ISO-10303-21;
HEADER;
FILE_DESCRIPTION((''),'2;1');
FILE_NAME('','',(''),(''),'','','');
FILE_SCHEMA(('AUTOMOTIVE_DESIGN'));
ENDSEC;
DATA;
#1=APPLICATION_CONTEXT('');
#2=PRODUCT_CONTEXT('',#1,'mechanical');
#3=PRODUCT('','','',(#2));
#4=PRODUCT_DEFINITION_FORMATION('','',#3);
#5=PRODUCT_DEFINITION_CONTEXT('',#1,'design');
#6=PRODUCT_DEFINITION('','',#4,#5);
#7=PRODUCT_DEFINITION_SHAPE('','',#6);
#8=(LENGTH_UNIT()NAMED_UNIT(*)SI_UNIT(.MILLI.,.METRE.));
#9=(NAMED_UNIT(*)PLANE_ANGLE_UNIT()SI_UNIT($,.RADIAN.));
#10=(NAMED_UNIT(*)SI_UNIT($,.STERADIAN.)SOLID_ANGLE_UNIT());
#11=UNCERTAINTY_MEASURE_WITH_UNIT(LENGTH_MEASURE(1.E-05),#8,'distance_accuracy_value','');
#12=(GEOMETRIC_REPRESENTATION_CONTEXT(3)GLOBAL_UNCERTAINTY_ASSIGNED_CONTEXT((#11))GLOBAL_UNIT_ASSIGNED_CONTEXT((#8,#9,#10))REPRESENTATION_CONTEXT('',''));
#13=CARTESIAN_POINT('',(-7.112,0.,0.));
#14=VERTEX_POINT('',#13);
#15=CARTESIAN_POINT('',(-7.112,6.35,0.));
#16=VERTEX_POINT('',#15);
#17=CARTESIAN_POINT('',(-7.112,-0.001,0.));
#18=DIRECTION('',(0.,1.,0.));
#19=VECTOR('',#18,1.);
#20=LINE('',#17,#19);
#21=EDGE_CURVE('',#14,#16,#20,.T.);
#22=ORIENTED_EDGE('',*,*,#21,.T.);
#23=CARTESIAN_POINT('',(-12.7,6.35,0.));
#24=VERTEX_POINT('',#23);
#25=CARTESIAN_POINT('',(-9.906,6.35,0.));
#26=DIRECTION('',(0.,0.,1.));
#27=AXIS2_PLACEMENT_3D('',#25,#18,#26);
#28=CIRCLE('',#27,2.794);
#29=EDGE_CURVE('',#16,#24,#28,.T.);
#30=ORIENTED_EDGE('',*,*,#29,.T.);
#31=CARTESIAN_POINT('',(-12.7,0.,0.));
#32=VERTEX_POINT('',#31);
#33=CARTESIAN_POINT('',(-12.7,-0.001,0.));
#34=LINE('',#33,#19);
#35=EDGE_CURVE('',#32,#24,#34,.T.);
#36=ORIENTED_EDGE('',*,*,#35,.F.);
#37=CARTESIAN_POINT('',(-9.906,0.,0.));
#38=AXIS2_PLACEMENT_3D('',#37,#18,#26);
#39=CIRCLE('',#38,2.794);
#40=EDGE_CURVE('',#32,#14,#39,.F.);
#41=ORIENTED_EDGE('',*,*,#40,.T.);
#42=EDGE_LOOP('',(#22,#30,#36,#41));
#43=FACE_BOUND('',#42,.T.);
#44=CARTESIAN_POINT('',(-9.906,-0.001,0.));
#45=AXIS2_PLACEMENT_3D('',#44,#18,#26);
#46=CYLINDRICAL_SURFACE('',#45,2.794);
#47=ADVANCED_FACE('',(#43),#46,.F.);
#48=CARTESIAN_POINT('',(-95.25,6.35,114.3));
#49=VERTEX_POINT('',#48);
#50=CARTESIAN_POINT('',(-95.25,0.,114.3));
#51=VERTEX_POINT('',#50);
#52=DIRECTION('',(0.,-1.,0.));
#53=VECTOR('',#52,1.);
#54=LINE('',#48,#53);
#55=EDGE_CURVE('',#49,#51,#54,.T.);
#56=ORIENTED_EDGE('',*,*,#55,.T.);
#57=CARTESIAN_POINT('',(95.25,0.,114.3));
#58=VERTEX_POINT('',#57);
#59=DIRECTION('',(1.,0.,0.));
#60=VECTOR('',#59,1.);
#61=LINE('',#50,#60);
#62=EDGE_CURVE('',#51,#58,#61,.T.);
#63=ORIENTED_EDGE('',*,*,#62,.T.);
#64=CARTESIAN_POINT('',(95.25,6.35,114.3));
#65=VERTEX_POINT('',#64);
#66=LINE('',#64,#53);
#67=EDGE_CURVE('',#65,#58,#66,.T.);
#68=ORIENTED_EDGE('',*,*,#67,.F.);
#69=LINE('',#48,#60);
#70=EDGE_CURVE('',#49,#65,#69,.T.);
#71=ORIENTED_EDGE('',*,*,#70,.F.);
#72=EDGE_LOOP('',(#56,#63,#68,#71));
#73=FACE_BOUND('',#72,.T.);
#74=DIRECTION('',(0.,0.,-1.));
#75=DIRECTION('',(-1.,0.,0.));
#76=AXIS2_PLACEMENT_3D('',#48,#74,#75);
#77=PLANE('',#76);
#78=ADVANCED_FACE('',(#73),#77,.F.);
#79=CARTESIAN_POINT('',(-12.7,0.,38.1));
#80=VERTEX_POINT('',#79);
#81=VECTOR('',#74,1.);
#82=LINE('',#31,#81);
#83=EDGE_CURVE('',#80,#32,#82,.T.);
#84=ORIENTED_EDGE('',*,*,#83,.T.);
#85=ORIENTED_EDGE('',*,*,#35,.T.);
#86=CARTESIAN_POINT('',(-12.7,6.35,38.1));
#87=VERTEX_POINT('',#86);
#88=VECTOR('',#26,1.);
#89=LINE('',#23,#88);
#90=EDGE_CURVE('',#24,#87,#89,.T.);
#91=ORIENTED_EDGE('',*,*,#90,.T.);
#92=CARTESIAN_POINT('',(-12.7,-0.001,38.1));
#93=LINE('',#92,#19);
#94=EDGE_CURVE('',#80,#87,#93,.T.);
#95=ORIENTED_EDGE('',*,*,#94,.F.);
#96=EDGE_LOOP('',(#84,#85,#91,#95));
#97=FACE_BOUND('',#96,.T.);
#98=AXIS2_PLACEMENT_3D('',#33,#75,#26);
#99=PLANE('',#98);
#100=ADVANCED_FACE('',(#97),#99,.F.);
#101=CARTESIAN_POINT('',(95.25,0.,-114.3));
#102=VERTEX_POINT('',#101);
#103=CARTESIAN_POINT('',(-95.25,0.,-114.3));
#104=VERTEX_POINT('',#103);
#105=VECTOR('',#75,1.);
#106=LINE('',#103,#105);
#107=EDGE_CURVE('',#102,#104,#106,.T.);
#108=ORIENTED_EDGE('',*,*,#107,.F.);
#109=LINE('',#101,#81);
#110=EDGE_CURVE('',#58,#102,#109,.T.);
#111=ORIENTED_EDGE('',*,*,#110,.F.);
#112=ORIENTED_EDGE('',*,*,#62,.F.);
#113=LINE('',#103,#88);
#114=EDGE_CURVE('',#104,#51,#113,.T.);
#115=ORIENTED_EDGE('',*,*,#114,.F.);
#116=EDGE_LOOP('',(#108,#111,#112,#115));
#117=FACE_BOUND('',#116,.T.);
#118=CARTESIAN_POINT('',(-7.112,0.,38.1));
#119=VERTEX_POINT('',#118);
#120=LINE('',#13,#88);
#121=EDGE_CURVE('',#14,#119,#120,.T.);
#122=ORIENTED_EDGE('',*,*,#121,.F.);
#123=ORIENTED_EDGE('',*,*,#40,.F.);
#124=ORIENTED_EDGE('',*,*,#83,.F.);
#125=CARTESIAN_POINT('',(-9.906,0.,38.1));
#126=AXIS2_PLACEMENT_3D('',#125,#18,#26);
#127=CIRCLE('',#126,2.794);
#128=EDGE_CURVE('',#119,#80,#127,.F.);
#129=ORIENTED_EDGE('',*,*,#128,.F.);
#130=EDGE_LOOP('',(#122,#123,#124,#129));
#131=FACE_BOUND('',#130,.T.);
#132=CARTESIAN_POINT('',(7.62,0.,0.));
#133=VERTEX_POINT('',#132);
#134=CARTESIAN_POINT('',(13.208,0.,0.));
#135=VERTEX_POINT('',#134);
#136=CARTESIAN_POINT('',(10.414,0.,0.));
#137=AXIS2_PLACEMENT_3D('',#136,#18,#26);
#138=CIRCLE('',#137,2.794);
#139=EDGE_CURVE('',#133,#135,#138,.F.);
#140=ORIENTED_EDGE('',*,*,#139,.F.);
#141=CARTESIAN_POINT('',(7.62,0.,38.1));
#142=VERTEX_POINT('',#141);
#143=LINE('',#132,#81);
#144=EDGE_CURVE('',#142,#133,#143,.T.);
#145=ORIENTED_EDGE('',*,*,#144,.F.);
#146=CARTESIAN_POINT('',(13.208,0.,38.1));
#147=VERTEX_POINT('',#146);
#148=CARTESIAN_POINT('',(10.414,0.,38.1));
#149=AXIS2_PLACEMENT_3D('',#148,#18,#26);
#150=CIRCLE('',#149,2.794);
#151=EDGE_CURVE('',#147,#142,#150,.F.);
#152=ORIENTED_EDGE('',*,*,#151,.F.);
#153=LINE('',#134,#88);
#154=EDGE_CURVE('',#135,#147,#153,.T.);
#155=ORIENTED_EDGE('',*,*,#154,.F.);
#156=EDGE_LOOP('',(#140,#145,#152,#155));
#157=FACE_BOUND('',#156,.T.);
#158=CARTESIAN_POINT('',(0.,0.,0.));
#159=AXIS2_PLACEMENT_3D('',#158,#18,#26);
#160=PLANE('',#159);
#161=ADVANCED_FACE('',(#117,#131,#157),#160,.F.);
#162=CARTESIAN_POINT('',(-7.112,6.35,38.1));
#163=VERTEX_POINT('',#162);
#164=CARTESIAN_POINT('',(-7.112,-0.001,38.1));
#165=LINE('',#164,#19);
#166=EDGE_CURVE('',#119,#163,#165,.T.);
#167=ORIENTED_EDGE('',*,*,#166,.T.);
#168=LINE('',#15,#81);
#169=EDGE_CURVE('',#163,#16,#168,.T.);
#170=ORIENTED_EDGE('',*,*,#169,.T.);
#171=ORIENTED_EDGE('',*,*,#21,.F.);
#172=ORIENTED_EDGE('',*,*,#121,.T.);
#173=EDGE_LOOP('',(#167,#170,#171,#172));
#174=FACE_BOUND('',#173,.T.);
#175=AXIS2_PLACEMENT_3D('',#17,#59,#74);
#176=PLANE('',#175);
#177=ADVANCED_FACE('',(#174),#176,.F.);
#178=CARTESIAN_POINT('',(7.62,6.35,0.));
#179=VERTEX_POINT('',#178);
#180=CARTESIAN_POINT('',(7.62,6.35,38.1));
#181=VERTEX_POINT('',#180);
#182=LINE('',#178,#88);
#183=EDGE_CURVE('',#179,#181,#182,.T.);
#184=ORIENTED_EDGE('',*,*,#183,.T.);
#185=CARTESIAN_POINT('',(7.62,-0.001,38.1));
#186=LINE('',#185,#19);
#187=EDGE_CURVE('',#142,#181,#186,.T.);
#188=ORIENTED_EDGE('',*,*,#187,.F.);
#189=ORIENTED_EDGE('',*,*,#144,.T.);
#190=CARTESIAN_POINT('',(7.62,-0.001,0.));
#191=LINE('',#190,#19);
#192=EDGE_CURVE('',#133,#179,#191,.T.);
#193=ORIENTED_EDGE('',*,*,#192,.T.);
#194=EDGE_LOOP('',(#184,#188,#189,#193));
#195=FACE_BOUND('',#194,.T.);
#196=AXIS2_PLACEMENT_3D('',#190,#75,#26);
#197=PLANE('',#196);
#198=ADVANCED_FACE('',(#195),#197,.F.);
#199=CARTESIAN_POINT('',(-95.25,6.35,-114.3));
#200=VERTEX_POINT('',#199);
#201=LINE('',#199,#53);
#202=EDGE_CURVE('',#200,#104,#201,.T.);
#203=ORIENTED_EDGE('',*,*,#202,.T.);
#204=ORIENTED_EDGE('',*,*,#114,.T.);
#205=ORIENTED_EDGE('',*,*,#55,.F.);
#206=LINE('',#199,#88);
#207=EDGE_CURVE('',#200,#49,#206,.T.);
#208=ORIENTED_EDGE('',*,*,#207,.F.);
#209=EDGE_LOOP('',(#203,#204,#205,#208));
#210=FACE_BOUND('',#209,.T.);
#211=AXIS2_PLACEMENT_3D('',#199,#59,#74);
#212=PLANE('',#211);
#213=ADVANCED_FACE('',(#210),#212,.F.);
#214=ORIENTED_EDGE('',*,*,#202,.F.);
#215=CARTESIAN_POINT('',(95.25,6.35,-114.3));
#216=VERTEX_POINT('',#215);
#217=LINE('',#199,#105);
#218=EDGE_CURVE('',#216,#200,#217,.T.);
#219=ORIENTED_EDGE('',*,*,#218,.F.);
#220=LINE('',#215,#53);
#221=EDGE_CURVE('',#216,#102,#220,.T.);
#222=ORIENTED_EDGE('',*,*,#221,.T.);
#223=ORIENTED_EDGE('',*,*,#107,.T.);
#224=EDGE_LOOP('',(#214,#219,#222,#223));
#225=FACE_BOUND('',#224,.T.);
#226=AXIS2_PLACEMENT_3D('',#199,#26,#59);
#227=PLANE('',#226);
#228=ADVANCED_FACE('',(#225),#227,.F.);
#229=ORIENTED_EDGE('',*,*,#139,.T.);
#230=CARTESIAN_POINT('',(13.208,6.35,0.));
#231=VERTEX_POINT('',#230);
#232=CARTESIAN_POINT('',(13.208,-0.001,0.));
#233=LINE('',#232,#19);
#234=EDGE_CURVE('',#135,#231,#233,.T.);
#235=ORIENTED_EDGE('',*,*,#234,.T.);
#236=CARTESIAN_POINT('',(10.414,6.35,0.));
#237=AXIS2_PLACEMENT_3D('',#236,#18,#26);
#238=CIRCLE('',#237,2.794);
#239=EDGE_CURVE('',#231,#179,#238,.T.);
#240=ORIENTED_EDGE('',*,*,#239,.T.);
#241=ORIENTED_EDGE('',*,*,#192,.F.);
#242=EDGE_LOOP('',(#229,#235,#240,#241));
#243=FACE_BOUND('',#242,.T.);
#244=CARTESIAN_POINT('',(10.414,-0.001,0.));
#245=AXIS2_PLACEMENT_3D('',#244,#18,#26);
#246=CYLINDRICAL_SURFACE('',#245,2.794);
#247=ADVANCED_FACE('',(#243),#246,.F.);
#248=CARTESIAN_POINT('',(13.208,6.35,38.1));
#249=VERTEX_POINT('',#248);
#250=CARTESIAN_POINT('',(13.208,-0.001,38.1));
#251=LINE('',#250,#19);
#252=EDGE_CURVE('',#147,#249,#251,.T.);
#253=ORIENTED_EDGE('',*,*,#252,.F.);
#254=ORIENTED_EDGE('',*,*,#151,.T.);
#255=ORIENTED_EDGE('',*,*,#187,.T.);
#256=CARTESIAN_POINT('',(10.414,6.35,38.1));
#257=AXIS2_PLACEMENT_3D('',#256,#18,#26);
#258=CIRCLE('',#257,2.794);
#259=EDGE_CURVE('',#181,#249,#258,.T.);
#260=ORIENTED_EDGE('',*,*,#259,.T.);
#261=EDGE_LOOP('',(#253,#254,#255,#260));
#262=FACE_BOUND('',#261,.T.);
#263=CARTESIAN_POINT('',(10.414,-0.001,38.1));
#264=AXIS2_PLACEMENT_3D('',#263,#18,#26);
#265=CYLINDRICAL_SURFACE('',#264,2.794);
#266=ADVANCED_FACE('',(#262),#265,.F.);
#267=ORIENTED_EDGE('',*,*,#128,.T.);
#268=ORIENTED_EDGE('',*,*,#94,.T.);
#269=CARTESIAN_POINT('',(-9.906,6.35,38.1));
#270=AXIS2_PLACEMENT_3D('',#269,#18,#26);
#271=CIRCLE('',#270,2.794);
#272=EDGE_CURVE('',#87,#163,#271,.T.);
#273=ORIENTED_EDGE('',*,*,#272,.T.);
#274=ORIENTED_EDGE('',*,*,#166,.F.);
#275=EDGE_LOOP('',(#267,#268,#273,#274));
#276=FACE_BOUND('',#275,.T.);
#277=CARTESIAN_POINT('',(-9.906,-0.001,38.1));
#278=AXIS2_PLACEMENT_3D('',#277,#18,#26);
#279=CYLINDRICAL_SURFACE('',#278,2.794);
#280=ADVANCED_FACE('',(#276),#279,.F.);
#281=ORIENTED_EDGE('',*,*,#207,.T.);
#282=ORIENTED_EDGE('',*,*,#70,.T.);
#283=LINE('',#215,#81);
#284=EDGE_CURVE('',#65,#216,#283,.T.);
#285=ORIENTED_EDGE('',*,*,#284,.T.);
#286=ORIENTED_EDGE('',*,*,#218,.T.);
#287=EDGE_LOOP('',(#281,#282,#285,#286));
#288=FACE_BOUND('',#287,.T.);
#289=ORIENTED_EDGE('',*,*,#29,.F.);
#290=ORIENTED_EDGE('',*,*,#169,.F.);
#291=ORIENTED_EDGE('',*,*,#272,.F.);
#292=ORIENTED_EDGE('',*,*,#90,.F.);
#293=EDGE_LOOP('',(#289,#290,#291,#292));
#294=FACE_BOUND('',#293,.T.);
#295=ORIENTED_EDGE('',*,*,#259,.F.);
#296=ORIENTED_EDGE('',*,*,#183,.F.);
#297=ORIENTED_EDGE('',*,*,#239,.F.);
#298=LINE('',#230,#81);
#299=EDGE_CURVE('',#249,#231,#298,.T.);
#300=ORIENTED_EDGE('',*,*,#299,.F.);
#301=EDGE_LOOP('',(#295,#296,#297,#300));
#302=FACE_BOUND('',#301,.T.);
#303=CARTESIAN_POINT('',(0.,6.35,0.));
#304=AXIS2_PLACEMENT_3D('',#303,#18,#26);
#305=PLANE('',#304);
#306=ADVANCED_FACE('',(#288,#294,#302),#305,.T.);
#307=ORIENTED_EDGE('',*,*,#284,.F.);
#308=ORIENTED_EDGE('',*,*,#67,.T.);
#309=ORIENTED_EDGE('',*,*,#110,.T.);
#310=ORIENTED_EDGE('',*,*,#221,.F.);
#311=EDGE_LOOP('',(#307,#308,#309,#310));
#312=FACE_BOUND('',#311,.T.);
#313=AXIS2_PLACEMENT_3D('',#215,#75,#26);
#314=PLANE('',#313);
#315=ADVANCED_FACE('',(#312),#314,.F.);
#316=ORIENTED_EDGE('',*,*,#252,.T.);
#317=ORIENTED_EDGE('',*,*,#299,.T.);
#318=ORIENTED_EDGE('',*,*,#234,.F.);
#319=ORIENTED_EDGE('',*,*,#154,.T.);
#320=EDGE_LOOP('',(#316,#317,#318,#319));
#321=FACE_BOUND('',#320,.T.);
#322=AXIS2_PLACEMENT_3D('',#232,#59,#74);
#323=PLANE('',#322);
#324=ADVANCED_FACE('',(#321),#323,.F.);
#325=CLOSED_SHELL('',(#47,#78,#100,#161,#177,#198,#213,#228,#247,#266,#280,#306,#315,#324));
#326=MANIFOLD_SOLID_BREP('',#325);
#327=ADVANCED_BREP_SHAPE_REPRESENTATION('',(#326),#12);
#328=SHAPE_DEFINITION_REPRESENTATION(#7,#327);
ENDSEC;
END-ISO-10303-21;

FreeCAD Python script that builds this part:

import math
import FreeCAD as App
import Part
import Sketcher
from FreeCAD import Vector
Q = App.Units.Quantity


def add_polygon(sketch, points):
    """Adds a closed chain of lines whose ends are joined by coincident constraints."""
    first, n = sketch.GeometryCount, len(points)
    for a, b in zip(points, points[1:] + points[:1]):
        sketch.addGeometry(Part.LineSegment(App.Vector(*a, 0), App.Vector(*b, 0)), False)
    for i in range(n):
        sketch.addConstraint(Sketcher.Constraint("Coincident", first + i, 2, first + (i + 1) % n, 1))

doc = App.newDocument("Part")
params = doc.addObject("Spreadsheet::Sheet", "Params")
for row, (alias, value) in enumerate([
    ("sketch1_height", "9 in"),
    ("sketch1_width", "7.5 in"),
    ("pad1_length", "0.25 in"),
    ("sketch2_radius", "0.11 in"),
    ("sketch2_height", "1.5 in"),
    ("sketch3_radius", "0.11 in"),
    ("sketch3_height", "1.5 in"),
], start=1):
    params.set(f"A{row}", alias)
    params.set(f"B{row}", "=" + value)
    params.setAlias(f"B{row}", alias)

body = doc.addObject("PartDesign::Body", "Body")

# Sketch on XZ plane
sketch1 = body.newObject("Sketcher::SketchObject", "Sketch")
sketch1.AttachmentSupport = (doc.getObject("XZ_Plane"), [""])
sketch1.MapMode = "FlatFace"
add_polygon(sketch1, [(-95.25, -114.3), (-95.25, 114.3), (95.25, 114.3), (95.25, -114.3)])  # lines 0-3
sketch1.addConstraint(Sketcher.Constraint("Vertical", 0))
sketch1.addConstraint(Sketcher.Constraint("Horizontal", 1))
sketch1.addConstraint(Sketcher.Constraint("Vertical", 2))
sketch1.addConstraint(Sketcher.Constraint("Horizontal", 3))
sketch1.addConstraint(Sketcher.Constraint("Symmetric", 0, 2, 2, 2, -1, 1))
sketch1.addConstraint(Sketcher.Constraint("DistanceY", 0, 1, 0, 2, Q("9 in")))
sketch1.addConstraint(Sketcher.Constraint("DistanceX", 1, 1, 1, 2, Q("7.5 in")))
sketch1.setExpression("Constraints[9]", "Params.sketch1_height")
sketch1.setExpression("Constraints[10]", "Params.sketch1_width")
pad1 = body.newObject("PartDesign::Pad", "Pad")
pad1.Profile = sketch1
pad1.setExpression("Length", "Params.pad1_length")
pad1.Reversed = True

# Sketch on XZ plane
sketch2 = body.newObject("Sketcher::SketchObject", "Sketch001")
sketch2.AttachmentSupport = (doc.getObject("XZ_Plane"), [""])
sketch2.MapMode = "FlatFace"
sketch2.AttachmentOffset = App.Placement(Vector(0, 0, -0.25 * 25.4), App.Rotation())
sketch2.addGeometry(Part.LineSegment(Vector(-7.112, 38.1, 0), Vector(-7.112, 0, 0)), False)
sketch2.addGeometry(Part.ArcOfCircle(Part.Circle(Vector(-9.906, 0, 0), Vector(0, 0, 1), 2.794), math.radians(180), math.radians(360)), False)
sketch2.addGeometry(Part.LineSegment(Vector(-12.7, 0, 0), Vector(-12.7, 38.1, 0)), False)
sketch2.addGeometry(Part.ArcOfCircle(Part.Circle(Vector(-9.906, 38.1, 0), Vector(0, 0, 1), 2.794), math.radians(0), math.radians(180)), False)
sketch2.addConstraint(Sketcher.Constraint("Tangent", 0, 2, 1, 2))
sketch2.addConstraint(Sketcher.Constraint("Tangent", 1, 1, 2, 1))
sketch2.addConstraint(Sketcher.Constraint("Tangent", 2, 2, 3, 2))
sketch2.addConstraint(Sketcher.Constraint("Tangent", 3, 1, 0, 1))
sketch2.addConstraint(Sketcher.Constraint("Vertical", 0))
sketch2.addConstraint(Sketcher.Constraint("Vertical", 2))
sketch2.addConstraint(Sketcher.Constraint("PointOnObject", 1, 3, -1))
sketch2.addConstraint(Sketcher.Constraint("Radius", 1, Q("0.11 in")))
sketch2.addConstraint(Sketcher.Constraint("DistanceY", 0, 2, 0, 1, Q("1.5 in")))
sketch2.addConstraint(Sketcher.Constraint("DistanceX", 1, 1, -1, 1, Q("0.5 in")))
sketch2.setExpression("Constraints[7]", "Params.sketch2_radius")
sketch2.setExpression("Constraints[8]", "Params.sketch2_height")
pocket1 = body.newObject("PartDesign::Pocket", "Pocket")
pocket1.Profile = sketch2
pocket1.Type = "UpToFirst"
pocket1.Reversed = True

# Sketch on XZ plane
sketch3 = body.newObject("Sketcher::SketchObject", "Sketch002")
sketch3.AttachmentSupport = (doc.getObject("XZ_Plane"), [""])
sketch3.MapMode = "FlatFace"
sketch3.AttachmentOffset = App.Placement(Vector(0, 0, -0.25 * 25.4), App.Rotation())
sketch3.addGeometry(Part.LineSegment(Vector(13.208, 38.1, 0), Vector(13.208, 0, 0)), False)
sketch3.addGeometry(Part.ArcOfCircle(Part.Circle(Vector(10.414, 0, 0), Vector(0, 0, 1), 2.794), math.radians(180), math.radians(360)), False)
sketch3.addGeometry(Part.LineSegment(Vector(7.62, 0, 0), Vector(7.62, 38.1, 0)), False)
sketch3.addGeometry(Part.ArcOfCircle(Part.Circle(Vector(10.414, 38.1, 0), Vector(0, 0, 1), 2.794), math.radians(0), math.radians(180)), False)
sketch3.addConstraint(Sketcher.Constraint("Tangent", 0, 2, 1, 2))
sketch3.addConstraint(Sketcher.Constraint("Tangent", 1, 1, 2, 1))
sketch3.addConstraint(Sketcher.Constraint("Tangent", 2, 2, 3, 2))
sketch3.addConstraint(Sketcher.Constraint("Tangent", 3, 1, 0, 1))
sketch3.addConstraint(Sketcher.Constraint("Vertical", 0))
sketch3.addConstraint(Sketcher.Constraint("Vertical", 2))
sketch3.addConstraint(Sketcher.Constraint("PointOnObject", 1, 3, -1))
sketch3.addConstraint(Sketcher.Constraint("Radius", 1, Q("0.11 in")))
sketch3.addConstraint(Sketcher.Constraint("DistanceY", 0, 2, 0, 1, Q("1.5 in")))
sketch3.addConstraint(Sketcher.Constraint("DistanceX", -1, 1, 1, 1, Q("0.3 in")))
sketch3.setExpression("Constraints[7]", "Params.sketch3_radius")
sketch3.setExpression("Constraints[8]", "Params.sketch3_height")
pocket2 = body.newObject("PartDesign::Pocket", "Pocket001")
pocket2.Profile = sketch3
pocket2.Type = "UpToFirst"
pocket2.Reversed = True

doc.recompute()
